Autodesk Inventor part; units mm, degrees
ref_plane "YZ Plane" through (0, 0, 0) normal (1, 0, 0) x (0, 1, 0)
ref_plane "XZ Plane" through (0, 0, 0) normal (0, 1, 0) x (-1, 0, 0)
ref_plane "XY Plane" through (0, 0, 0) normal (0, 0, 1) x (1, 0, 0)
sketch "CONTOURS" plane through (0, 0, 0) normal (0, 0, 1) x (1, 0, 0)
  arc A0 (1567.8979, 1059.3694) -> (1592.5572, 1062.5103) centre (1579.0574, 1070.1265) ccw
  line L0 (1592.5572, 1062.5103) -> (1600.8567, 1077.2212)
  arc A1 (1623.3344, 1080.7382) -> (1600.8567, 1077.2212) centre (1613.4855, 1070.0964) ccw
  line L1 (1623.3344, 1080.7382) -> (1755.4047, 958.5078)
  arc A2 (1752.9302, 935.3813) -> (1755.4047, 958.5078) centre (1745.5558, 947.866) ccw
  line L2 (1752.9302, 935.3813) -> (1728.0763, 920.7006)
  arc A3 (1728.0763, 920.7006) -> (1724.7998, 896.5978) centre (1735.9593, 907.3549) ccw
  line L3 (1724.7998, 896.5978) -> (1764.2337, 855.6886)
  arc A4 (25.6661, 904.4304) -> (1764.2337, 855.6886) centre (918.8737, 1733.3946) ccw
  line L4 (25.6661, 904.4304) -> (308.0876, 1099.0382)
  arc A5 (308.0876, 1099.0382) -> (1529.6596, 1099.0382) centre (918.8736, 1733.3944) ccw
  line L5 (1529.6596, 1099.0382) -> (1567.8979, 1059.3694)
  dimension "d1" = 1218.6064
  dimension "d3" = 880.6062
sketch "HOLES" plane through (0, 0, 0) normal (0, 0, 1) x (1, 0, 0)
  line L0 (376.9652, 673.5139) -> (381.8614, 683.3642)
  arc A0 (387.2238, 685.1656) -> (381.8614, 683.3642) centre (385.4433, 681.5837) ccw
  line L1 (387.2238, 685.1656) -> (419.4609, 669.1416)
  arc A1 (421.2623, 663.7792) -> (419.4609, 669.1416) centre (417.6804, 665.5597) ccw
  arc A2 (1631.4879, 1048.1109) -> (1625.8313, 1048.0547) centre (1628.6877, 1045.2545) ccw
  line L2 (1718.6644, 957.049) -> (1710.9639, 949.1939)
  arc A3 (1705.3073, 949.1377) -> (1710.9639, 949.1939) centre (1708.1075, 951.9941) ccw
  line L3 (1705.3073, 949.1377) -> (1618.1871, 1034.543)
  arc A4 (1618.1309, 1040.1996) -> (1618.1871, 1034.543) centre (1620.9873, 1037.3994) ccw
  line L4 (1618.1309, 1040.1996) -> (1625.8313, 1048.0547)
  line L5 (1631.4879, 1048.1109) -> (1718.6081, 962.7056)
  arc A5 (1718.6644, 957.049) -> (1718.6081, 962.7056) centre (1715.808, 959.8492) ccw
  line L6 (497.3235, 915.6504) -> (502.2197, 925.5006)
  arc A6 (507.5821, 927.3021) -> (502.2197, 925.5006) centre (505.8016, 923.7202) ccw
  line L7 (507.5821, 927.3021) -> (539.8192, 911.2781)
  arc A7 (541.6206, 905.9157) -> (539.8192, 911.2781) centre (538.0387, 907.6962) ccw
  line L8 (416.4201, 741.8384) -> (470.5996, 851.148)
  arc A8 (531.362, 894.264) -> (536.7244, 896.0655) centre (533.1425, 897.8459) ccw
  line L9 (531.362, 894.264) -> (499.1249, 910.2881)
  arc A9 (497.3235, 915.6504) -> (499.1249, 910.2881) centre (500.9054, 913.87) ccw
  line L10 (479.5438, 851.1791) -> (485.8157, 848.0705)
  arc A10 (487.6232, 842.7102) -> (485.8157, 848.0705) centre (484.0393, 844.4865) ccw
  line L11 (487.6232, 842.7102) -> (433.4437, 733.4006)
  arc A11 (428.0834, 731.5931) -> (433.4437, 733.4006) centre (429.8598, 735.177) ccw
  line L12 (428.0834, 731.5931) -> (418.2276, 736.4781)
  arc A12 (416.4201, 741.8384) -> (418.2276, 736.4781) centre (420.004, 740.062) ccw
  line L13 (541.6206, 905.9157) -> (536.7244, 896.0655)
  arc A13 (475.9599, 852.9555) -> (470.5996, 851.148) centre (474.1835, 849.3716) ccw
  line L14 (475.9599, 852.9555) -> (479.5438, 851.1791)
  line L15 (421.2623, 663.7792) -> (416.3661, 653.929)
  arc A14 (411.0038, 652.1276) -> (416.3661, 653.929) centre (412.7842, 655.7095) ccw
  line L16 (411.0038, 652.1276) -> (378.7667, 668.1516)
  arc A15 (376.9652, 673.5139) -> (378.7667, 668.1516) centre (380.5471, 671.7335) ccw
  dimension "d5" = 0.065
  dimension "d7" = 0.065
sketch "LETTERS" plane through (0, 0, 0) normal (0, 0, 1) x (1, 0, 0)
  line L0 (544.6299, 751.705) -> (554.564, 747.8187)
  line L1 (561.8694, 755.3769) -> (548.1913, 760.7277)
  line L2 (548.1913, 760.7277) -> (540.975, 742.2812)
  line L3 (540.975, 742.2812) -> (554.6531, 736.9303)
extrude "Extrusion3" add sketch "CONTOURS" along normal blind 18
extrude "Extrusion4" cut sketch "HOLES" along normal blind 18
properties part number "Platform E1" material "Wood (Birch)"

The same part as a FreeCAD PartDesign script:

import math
import FreeCAD as App
import Part
import Sketcher
Q = App.Units.Quantity

doc = App.newDocument("Part")
body = doc.addObject("PartDesign::Body", "Body")

# Sketch on XY plane
sketch1 = doc.addObject("Sketcher::SketchObject", "Sketch")
body.addObject(sketch1)
sketch1.AttachmentSupport = (doc.XY_Plane, [""])
sketch1.MapMode = "FlatFace"
sketch1.addGeometry(Part.ArcOfCircle(Part.Circle(App.Vector(1579, 1070, 0), App.Vector(0, 0, 1), 15), math.radians(-136), math.radians(-29)), False)
sketch1.addGeometry(Part.LineSegment(App.Vector(1568, 1059, 0), App.Vector(1530, 1099, 0)), False)
sketch1.addGeometry(Part.ArcOfCircle(Part.Circle(App.Vector(919, 1733, 0), App.Vector(0, 0, 1), 881), math.radians(-134), math.radians(-46)), False)
sketch1.addGeometry(Part.LineSegment(App.Vector(308, 1099, 0), App.Vector(26, 904, 0)), False)
sketch1.addGeometry(Part.ArcOfCircle(Part.Circle(App.Vector(919, 1733, 0), App.Vector(0, 0, 1), 1219), math.radians(-137), math.radians(-46)), False)
sketch1.addGeometry(Part.LineSegment(App.Vector(1764, 856, 0), App.Vector(1725, 897, 0)), False)
sketch1.addGeometry(Part.ArcOfCircle(Part.Circle(App.Vector(1736, 907, 0), App.Vector(0, 0, 1), 15), math.radians(121), math.radians(224)), False)
sketch1.addGeometry(Part.LineSegment(App.Vector(1728, 921, 0), App.Vector(1753, 935, 0)), False)
sketch1.addGeometry(Part.ArcOfCircle(Part.Circle(App.Vector(1746, 948, 0), App.Vector(0, 0, 1), 14), math.radians(-59), math.radians(47)), False)
sketch1.addGeometry(Part.LineSegment(App.Vector(1755, 959, 0), App.Vector(1623, 1081, 0)), False)
sketch1.addGeometry(Part.ArcOfCircle(Part.Circle(App.Vector(1613, 1070, 0), App.Vector(0, 0, 1), 14), math.radians(47), math.radians(151)), False)
sketch1.addGeometry(Part.LineSegment(App.Vector(1601, 1077, 0), App.Vector(1593, 1063, 0)), False)
sketch1.addConstraint(Sketcher.Constraint("Tangent", 0, 1, 1, 1))
sketch1.addConstraint(Sketcher.Constraint("Coincident", 1, 2, 2, 2))
sketch1.addConstraint(Sketcher.Constraint("Coincident", 2, 1, 3, 1))
sketch1.addConstraint(Sketcher.Constraint("Coincident", 3, 2, 4, 1))
sketch1.addConstraint(Sketcher.Constraint("Coincident", 4, 2, 5, 1))
sketch1.addConstraint(Sketcher.Constraint("Tangent", 5, 2, 6, 2))
sketch1.addConstraint(Sketcher.Constraint("Tangent", 6, 1, 7, 1))
sketch1.addConstraint(Sketcher.Constraint("Tangent", 7, 2, 8, 1))
sketch1.addConstraint(Sketcher.Constraint("Tangent", 8, 2, 9, 1))
sketch1.addConstraint(Sketcher.Constraint("Tangent", 9, 2, 10, 1))
sketch1.addConstraint(Sketcher.Constraint("Tangent", 10, 2, 11, 1))
sketch1.addConstraint(Sketcher.Constraint("Tangent", 11, 2, 0, 2))
sketch1.addConstraint(Sketcher.Constraint("Coincident", 4, 3, 2, 3))
sketch1.addConstraint(Sketcher.Constraint("Equal", 0, 6))
sketch1.addConstraint(Sketcher.Constraint("Equal", 8, 10))
sketch1.addConstraint(Sketcher.Constraint("Parallel", 1, 5))
sketch1.addConstraint(Sketcher.Constraint("Radius", 0, 15.5))
sketch1.addConstraint(Sketcher.Constraint("Radius", 2, 880.6062))
sketch1.addConstraint(Sketcher.Constraint("Radius", 4, 1218.6064))
sketch1.addConstraint(Sketcher.Constraint("Radius", 8, 14.5))
sketch1.addConstraint(Sketcher.Constraint("Angle", 3, Q("-145.4305 deg")))
sketch1.addConstraint(Sketcher.Constraint("Angle", 7, Q("30.5695 deg")))
sketch1.addConstraint(Sketcher.Constraint("Angle", 11, Q("-119.4305 deg")))
sketch1.addConstraint(Sketcher.Constraint("DistanceY", 9, 2, 1, 2, 18.3))
sketch1.addConstraint(Sketcher.Constraint("DistanceY", 10, 3, 0, 3, 0.03))
sketch1.addConstraint(Sketcher.Constraint("DistanceY", 5, 2, 8, 2, 61.91))
sketch1.addConstraint(Sketcher.Constraint("Distance", 1, 55.098))
sketch1.addConstraint(Sketcher.Constraint("Distance", 7, 28.866))
sketch1.addConstraint(Sketcher.Constraint("DistanceY", -1, 1, 6, 3, 907.355))
sketch1.addConstraint(Sketcher.Constraint("DistanceX", -1, 1, 0, 1, 1567.898))
sketch1.addConstraint(Sketcher.Constraint("DistanceX", -1, 1, 3, 2, 25.666))
sketch1.addConstraint(Sketcher.Constraint("DistanceY", 0, 3, 2, 3, 663.268))
sketch1.addConstraint(Sketcher.Constraint("DistanceX", 0, 3, 6, 3, 156.902))
pad1 = doc.addObject("PartDesign::Pad", "Pad")
body.addObject(pad1)
pad1.Profile = sketch1
pad1.Length = 18

# Sketch on XY plane
sketch2 = doc.addObject("Sketcher::SketchObject", "Sketch001")
body.addObject(sketch2)
sketch2.AttachmentSupport = (doc.XY_Plane, [""])
sketch2.MapMode = "FlatFace"
sketch2.addGeometry(Part.LineSegment(App.Vector(381.9, 683.4, 0), App.Vector(377, 673.5, 0)), False)
sketch2.addGeometry(Part.ArcOfCircle(Part.Circle(App.Vector(380.5, 671.7, 0), App.Vector(0, 0, 1), 4), math.radians(154), math.radians(244)), False)
sketch2.addGeometry(Part.LineSegment(App.Vector(378.8, 668.2, 0), App.Vector(411, 652.1, 0)), False)
sketch2.addGeometry(Part.ArcOfCircle(Part.Circle(App.Vector(412.8, 655.7, 0), App.Vector(0, 0, 1), 4), math.radians(-116), math.radians(-26)), False)
sketch2.addGeometry(Part.LineSegment(App.Vector(416.4, 653.9, 0), App.Vector(421.3, 663.8, 0)), False)
sketch2.addGeometry(Part.ArcOfCircle(Part.Circle(App.Vector(417.7, 665.6, 0), App.Vector(0, 0, 1), 4), math.radians(-26), math.radians(64)), False)
sketch2.addGeometry(Part.LineSegment(App.Vector(419.5, 669.1, 0), App.Vector(387.2, 685.2, 0)), False)
sketch2.addGeometry(Part.ArcOfCircle(Part.Circle(App.Vector(385.4, 681.6, 0), App.Vector(0, 0, 1), 4), math.radians(64), math.radians(154)), False)
sketch2.addGeometry(Part.LineSegment(App.Vector(1718.6, 962.7, 0), App.Vector(1631.5, 1048.1, 0)), False)
sketch2.addGeometry(Part.ArcOfCircle(Part.Circle(App.Vector(1628.7, 1045.3, 0), App.Vector(0, 0, 1), 4), math.radians(46), math.radians(136)), False)
sketch2.addGeometry(Part.LineSegment(App.Vector(1625.8, 1048.1, 0), App.Vector(1618.1, 1040.2, 0)), False)
sketch2.addGeometry(Part.ArcOfCircle(Part.Circle(App.Vector(1621, 1037.4, 0), App.Vector(0, 0, 1), 4), math.radians(136), math.radians(226)), False)
sketch2.addGeometry(Part.LineSegment(App.Vector(1618.2, 1034.5, 0), App.Vector(1705.3, 949.1, 0)), False)
sketch2.addGeometry(Part.ArcOfCircle(Part.Circle(App.Vector(1708.1, 952, 0), App.Vector(0, 0, 1), 4), math.radians(-134), math.radians(-44)), False)
sketch2.addGeometry(Part.LineSegment(App.Vector(1711, 949.2, 0), App.Vector(1718.7, 957, 0)), False)
sketch2.addGeometry(Part.ArcOfCircle(Part.Circle(App.Vector(1715.8, 959.8, 0), App.Vector(0, 0, 1), 4), math.radians(-44), math.radians(46)), False)
sketch2.addGeometry(Part.LineSegment(App.Vector(502.2, 925.5, 0), App.Vector(497.3, 915.7, 0)), False)
sketch2.addGeometry(Part.ArcOfCircle(Part.Circle(App.Vector(500.9, 913.9, 0), App.Vector(0, 0, 1), 4), math.radians(154), math.radians(244)), False)
sketch2.addGeometry(Part.LineSegment(App.Vector(499.1, 910.3, 0), App.Vector(531.4, 894.3, 0)), False)
sketch2.addGeometry(Part.ArcOfCircle(Part.Circle(App.Vector(533.1, 897.8, 0), App.Vector(0, 0, 1), 4), math.radians(-116), math.radians(-26)), False)
sketch2.addGeometry(Part.LineSegment(App.Vector(536.7, 896.1, 0), App.Vector(541.6, 905.9, 0)), False)
sketch2.addGeometry(Part.ArcOfCircle(Part.Circle(App.Vector(538, 907.7, 0), App.Vector(0, 0, 1), 4), math.radians(-26), math.radians(64)), False)
sketch2.addGeometry(Part.LineSegment(App.Vector(539.8, 911.3, 0), App.Vector(507.6, 927.3, 0)), False)
sketch2.addGeometry(Part.ArcOfCircle(Part.Circle(App.Vector(505.8, 923.7, 0), App.Vector(0, 0, 1), 4), math.radians(64), math.radians(154)), False)
sketch2.addGeometry(Part.LineSegment(App.Vector(470.6, 851.1, 0), App.Vector(416.4, 741.8, 0)), False)
sketch2.addGeometry(Part.ArcOfCircle(Part.Circle(App.Vector(420, 740.1, 0), App.Vector(0, 0, 1), 4), math.radians(154), math.radians(244)), False)
sketch2.addGeometry(Part.LineSegment(App.Vector(418.2, 736.5, 0), App.Vector(428.1, 731.6, 0)), False)
sketch2.addGeometry(Part.ArcOfCircle(Part.Circle(App.Vector(429.9, 735.2, 0), App.Vector(0, 0, 1), 4), math.radians(-116), math.radians(-26)), False)
sketch2.addGeometry(Part.LineSegment(App.Vector(433.4, 733.4, 0), App.Vector(487.6, 842.7, 0)), False)
sketch2.addGeometry(Part.ArcOfCircle(Part.Circle(App.Vector(484, 844.5, 0), App.Vector(0, 0, 1), 4), math.radians(-26), math.radians(64)), False)
sketch2.addGeometry(Part.LineSegment(App.Vector(485.8, 848.1, 0), App.Vector(479.5, 851.2, 0)), False)
sketch2.addGeometry(Part.LineSegment(App.Vector(479.5, 851.2, 0), App.Vector(476, 853, 0)), False)
sketch2.addGeometry(Part.ArcOfCircle(Part.Circle(App.Vector(474.2, 849.4, 0), App.Vector(0, 0, 1), 4), math.radians(64), math.radians(154)), False)
sketch2.addConstraint(Sketcher.Constraint("Tangent", 0, 2, 1, 1))
sketch2.addConstraint(Sketcher.Constraint("Tangent", 1, 2, 2, 1))
sketch2.addConstraint(Sketcher.Constraint("Tangent", 2, 2, 3, 1))
sketch2.addConstraint(Sketcher.Constraint("Tangent", 3, 2, 4, 1))
sketch2.addConstraint(Sketcher.Constraint("Tangent", 4, 2, 5, 1))
sketch2.addConstraint(Sketcher.Constraint("Tangent", 5, 2, 6, 1))
sketch2.addConstraint(Sketcher.Constraint("Tangent", 6, 2, 7, 1))
sketch2.addConstraint(Sketcher.Constraint("Tangent", 7, 2, 0, 1))
sketch2.addConstraint(Sketcher.Constraint("Tangent", 8, 2, 9, 1))
sketch2.addConstraint(Sketcher.Constraint("Tangent", 9, 2, 10, 1))
sketch2.addConstraint(Sketcher.Constraint("Tangent", 10, 2, 11, 1))
sketch2.addConstraint(Sketcher.Constraint("Tangent", 11, 2, 12, 1))
sketch2.addConstraint(Sketcher.Constraint("Tangent", 12, 2, 13, 1))
sketch2.addConstraint(Sketcher.Constraint("Tangent", 13, 2, 14, 1))
sketch2.addConstraint(Sketcher.Constraint("Tangent", 14, 2, 15, 1))
sketch2.addConstraint(Sketcher.Constraint("Tangent", 15, 2, 8, 1))
sketch2.addConstraint(Sketcher.Constraint("Tangent", 16, 2, 17, 1))
sketch2.addConstraint(Sketcher.Constraint("Tangent", 17, 2, 18, 1))
sketch2.addConstraint(Sketcher.Constraint("Tangent", 18, 2, 19, 1))
sketch2.addConstraint(Sketcher.Constraint("Tangent", 19, 2, 20, 1))
sketch2.addConstraint(Sketcher.Constraint("Tangent", 20, 2, 21, 1))
sketch2.addConstraint(Sketcher.Constraint("Tangent", 21, 2, 22, 1))
sketch2.addConstraint(Sketcher.Constraint("Tangent", 22, 2, 23, 1))
sketch2.addConstraint(Sketcher.Constraint("Tangent", 23, 2, 16, 1))
sketch2.addConstraint(Sketcher.Constraint("Tangent", 24, 2, 25, 1))
sketch2.addConstraint(Sketcher.Constraint("Tangent", 25, 2, 26, 1))
sketch2.addConstraint(Sketcher.Constraint("Tangent", 26, 2, 27, 1))
sketch2.addConstraint(Sketcher.Constraint("Tangent", 27, 2, 28, 1))
sketch2.addConstraint(Sketcher.Constraint("Tangent", 28, 2, 29, 1))
sketch2.addConstraint(Sketcher.Constraint("Tangent", 29, 2, 30, 1))
sketch2.addConstraint(Sketcher.Constraint("Coincident", 30, 2, 31, 1))
sketch2.addConstraint(Sketcher.Constraint("Tangent", 31, 2, 32, 1))
sketch2.addConstraint(Sketcher.Constraint("Tangent", 32, 2, 24, 1))
sketch2.addConstraint(Sketcher.Constraint("Equal", 1, 3))
sketch2.addConstraint(Sketcher.Constraint("Equal", 3, 5))
sketch2.addConstraint(Sketcher.Constraint("Equal", 5, 7))
sketch2.addConstraint(Sketcher.Constraint("Equal", 7, 9))
sketch2.addConstraint(Sketcher.Constraint("Equal", 9, 11))
sketch2.addConstraint(Sketcher.Constraint("Equal", 11, 13))
sketch2.addConstraint(Sketcher.Constraint("Equal", 13, 15))
sketch2.addConstraint(Sketcher.Constraint("Equal", 15, 17))
sketch2.addConstraint(Sketcher.Constraint("Equal", 17, 19))
sketch2.addConstraint(Sketcher.Constraint("Equal", 19, 21))
sketch2.addConstraint(Sketcher.Constraint("Equal", 21, 23))
sketch2.addConstraint(Sketcher.Constraint("Equal", 23, 25))
sketch2.addConstraint(Sketcher.Constraint("Equal", 25, 27))
sketch2.addConstraint(Sketcher.Constraint("Equal", 27, 29))
sketch2.addConstraint(Sketcher.Constraint("Equal", 29, 32))
sketch2.addConstraint(Sketcher.Constraint("Perpendicular", 0, 2))
sketch2.addConstraint(Sketcher.Constraint("Perpendicular", 2, 4))
sketch2.addConstraint(Sketcher.Constraint("Perpendicular", 4, 6))
sketch2.addConstraint(Sketcher.Constraint("Perpendicular", 8, 10))
sketch2.addConstraint(Sketcher.Constraint("Perpendicular", 10, 12))
sketch2.addConstraint(Sketcher.Constraint("Perpendicular", 12, 14))
sketch2.addConstraint(Sketcher.Constraint("Perpendicular", 6, 16))
sketch2.addConstraint(Sketcher.Constraint("Perpendicular", 16, 18))
sketch2.addConstraint(Sketcher.Constraint("Perpendicular", 18, 20))
sketch2.addConstraint(Sketcher.Constraint("Perpendicular", 20, 22))
sketch2.addConstraint(Sketcher.Constraint("Perpendicular", 24, 26))
sketch2.addConstraint(Sketcher.Constraint("Perpendicular", 26, 28))
sketch2.addConstraint(Sketcher.Constraint("Perpendicular", 28, 30))
sketch2.addConstraint(Sketcher.Constraint("Parallel", 30, 31))
sketch2.addConstraint(Sketcher.Constraint("Equal", 4, 10))
sketch2.addConstraint(Sketcher.Constraint("Equal", 14, 16))
sketch2.addConstraint(Sketcher.Constraint("Equal", 6, 18))
sketch2.addConstraint(Sketcher.Constraint("Equal", 12, 24))
sketch2.addConstraint(Sketcher.Constraint("Equal", 20, 26))
sketch2.addConstraint(Sketcher.Constraint("Radius", 1, 4.0))
sketch2.addConstraint(Sketcher.Constraint("Distance", 0, 11.0))
sketch2.addConstraint(Sketcher.Constraint("Distance", 2, 36.0))
sketch2.addConstraint(Sketcher.Constraint("Distance", 8, 122.0))
sketch2.addConstraint(Sketcher.Constraint("Distance", 30, 7.0))
sketch2.addConstraint(Sketcher.Constraint("Angle", 0, Q("-116.4302 deg")))
sketch2.addConstraint(Sketcher.Constraint("Angle", 8, Q("135.5695 deg")))
sketch2.addConstraint(Sketcher.Constraint("DistanceY", -1, 1, 17, 3, 913.87))
sketch2.addConstraint(Sketcher.Constraint("DistanceX", -1, 1, 24, 2, 416.42))
sketch2.addConstraint(Sketcher.Constraint("DistanceX", -1, 1, 31, 2, 475.96))
sketch2.addConstraint(Sketcher.Constraint("DistanceY", 3, 3, 11, 3, 381.69))
sketch2.addConstraint(Sketcher.Constraint("DistanceX", 32, 3, 16, 2, 23.14))
sketch2.addConstraint(Sketcher.Constraint("DistanceX", -1, 1, 1, 3, 380.547))
sketch2.addConstraint(Sketcher.Constraint("DistanceY", -1, 1, 13, 3, 951.994))
sketch2.addConstraint(Sketcher.Constraint("DistanceX", -1, 1, 15, 3, 1715.808))
sketch2.addConstraint(Sketcher.Constraint("DistanceY", -1, 1, 25, 3, 740.062))
pocket1 = doc.addObject("PartDesign::Pocket", "Pocket")
body.addObject(pocket1)
pocket1.Profile = sketch2
pocket1.Length = 18
pocket1.Reversed = True

doc.recompute()
